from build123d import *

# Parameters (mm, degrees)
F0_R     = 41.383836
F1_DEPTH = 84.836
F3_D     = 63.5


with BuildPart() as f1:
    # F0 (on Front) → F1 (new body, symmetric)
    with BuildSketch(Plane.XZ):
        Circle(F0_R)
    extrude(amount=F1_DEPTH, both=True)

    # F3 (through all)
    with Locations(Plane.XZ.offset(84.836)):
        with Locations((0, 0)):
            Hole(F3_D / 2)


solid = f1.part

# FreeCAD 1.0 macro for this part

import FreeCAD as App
import Part
import Sketcher
Q = App.Units.Quantity

doc = App.newDocument("Part")
body = doc.addObject("PartDesign::Body", "Body")

# Sketch on XZ plane
sketch1 = body.newObject("Sketcher::SketchObject", "Sketch")
sketch1.AttachmentSupport = (doc.getObject("XZ_Plane"), [""])
sketch1.MapMode = "FlatFace"
sketch1.addGeometry(Part.Circle(App.Vector(0, 0, 0), App.Vector(0, 0, 1), 41), False)
sketch1.addConstraint([
    Sketcher.Constraint("Coincident", 0, 3, -1, 1),
    Sketcher.Constraint("Diameter", 0, Q("82.767672 mm")),
])
pad1 = body.newObject("PartDesign::Pad", "Pad")
pad1.Profile = sketch1
pad1.Length = Q("6.68 in")
pad1.Midplane = True

# Sketch on XZ plane
sketch2 = body.newObject("Sketcher::SketchObject", "Sketch001")
sketch2.AttachmentSupport = (doc.getObject("XZ_Plane"), [""])
sketch2.MapMode = "FlatFace"
sketch2.AttachmentOffset = App.Placement(App.Vector(0, 0, 3.34 * 25.4), App.Rotation())
sketch2.addGeometry(Part.Circle(App.Vector(0, 0, 0), App.Vector(0, 0, 1), 32), False)
sketch2.addConstraint([
    Sketcher.Constraint("Coincident", 0, 3, -1, 1),
    Sketcher.Constraint("Diameter", 0, Q("2.5 in")),
])
doc.recompute()
hole = body.newObject("PartDesign::Hole", "Hole")
hole.Profile = sketch2
hole.ThreadType = "None"
hole.Diameter = Q("2.5 in")
hole.DepthType = "ThroughAll"

doc.recompute()
